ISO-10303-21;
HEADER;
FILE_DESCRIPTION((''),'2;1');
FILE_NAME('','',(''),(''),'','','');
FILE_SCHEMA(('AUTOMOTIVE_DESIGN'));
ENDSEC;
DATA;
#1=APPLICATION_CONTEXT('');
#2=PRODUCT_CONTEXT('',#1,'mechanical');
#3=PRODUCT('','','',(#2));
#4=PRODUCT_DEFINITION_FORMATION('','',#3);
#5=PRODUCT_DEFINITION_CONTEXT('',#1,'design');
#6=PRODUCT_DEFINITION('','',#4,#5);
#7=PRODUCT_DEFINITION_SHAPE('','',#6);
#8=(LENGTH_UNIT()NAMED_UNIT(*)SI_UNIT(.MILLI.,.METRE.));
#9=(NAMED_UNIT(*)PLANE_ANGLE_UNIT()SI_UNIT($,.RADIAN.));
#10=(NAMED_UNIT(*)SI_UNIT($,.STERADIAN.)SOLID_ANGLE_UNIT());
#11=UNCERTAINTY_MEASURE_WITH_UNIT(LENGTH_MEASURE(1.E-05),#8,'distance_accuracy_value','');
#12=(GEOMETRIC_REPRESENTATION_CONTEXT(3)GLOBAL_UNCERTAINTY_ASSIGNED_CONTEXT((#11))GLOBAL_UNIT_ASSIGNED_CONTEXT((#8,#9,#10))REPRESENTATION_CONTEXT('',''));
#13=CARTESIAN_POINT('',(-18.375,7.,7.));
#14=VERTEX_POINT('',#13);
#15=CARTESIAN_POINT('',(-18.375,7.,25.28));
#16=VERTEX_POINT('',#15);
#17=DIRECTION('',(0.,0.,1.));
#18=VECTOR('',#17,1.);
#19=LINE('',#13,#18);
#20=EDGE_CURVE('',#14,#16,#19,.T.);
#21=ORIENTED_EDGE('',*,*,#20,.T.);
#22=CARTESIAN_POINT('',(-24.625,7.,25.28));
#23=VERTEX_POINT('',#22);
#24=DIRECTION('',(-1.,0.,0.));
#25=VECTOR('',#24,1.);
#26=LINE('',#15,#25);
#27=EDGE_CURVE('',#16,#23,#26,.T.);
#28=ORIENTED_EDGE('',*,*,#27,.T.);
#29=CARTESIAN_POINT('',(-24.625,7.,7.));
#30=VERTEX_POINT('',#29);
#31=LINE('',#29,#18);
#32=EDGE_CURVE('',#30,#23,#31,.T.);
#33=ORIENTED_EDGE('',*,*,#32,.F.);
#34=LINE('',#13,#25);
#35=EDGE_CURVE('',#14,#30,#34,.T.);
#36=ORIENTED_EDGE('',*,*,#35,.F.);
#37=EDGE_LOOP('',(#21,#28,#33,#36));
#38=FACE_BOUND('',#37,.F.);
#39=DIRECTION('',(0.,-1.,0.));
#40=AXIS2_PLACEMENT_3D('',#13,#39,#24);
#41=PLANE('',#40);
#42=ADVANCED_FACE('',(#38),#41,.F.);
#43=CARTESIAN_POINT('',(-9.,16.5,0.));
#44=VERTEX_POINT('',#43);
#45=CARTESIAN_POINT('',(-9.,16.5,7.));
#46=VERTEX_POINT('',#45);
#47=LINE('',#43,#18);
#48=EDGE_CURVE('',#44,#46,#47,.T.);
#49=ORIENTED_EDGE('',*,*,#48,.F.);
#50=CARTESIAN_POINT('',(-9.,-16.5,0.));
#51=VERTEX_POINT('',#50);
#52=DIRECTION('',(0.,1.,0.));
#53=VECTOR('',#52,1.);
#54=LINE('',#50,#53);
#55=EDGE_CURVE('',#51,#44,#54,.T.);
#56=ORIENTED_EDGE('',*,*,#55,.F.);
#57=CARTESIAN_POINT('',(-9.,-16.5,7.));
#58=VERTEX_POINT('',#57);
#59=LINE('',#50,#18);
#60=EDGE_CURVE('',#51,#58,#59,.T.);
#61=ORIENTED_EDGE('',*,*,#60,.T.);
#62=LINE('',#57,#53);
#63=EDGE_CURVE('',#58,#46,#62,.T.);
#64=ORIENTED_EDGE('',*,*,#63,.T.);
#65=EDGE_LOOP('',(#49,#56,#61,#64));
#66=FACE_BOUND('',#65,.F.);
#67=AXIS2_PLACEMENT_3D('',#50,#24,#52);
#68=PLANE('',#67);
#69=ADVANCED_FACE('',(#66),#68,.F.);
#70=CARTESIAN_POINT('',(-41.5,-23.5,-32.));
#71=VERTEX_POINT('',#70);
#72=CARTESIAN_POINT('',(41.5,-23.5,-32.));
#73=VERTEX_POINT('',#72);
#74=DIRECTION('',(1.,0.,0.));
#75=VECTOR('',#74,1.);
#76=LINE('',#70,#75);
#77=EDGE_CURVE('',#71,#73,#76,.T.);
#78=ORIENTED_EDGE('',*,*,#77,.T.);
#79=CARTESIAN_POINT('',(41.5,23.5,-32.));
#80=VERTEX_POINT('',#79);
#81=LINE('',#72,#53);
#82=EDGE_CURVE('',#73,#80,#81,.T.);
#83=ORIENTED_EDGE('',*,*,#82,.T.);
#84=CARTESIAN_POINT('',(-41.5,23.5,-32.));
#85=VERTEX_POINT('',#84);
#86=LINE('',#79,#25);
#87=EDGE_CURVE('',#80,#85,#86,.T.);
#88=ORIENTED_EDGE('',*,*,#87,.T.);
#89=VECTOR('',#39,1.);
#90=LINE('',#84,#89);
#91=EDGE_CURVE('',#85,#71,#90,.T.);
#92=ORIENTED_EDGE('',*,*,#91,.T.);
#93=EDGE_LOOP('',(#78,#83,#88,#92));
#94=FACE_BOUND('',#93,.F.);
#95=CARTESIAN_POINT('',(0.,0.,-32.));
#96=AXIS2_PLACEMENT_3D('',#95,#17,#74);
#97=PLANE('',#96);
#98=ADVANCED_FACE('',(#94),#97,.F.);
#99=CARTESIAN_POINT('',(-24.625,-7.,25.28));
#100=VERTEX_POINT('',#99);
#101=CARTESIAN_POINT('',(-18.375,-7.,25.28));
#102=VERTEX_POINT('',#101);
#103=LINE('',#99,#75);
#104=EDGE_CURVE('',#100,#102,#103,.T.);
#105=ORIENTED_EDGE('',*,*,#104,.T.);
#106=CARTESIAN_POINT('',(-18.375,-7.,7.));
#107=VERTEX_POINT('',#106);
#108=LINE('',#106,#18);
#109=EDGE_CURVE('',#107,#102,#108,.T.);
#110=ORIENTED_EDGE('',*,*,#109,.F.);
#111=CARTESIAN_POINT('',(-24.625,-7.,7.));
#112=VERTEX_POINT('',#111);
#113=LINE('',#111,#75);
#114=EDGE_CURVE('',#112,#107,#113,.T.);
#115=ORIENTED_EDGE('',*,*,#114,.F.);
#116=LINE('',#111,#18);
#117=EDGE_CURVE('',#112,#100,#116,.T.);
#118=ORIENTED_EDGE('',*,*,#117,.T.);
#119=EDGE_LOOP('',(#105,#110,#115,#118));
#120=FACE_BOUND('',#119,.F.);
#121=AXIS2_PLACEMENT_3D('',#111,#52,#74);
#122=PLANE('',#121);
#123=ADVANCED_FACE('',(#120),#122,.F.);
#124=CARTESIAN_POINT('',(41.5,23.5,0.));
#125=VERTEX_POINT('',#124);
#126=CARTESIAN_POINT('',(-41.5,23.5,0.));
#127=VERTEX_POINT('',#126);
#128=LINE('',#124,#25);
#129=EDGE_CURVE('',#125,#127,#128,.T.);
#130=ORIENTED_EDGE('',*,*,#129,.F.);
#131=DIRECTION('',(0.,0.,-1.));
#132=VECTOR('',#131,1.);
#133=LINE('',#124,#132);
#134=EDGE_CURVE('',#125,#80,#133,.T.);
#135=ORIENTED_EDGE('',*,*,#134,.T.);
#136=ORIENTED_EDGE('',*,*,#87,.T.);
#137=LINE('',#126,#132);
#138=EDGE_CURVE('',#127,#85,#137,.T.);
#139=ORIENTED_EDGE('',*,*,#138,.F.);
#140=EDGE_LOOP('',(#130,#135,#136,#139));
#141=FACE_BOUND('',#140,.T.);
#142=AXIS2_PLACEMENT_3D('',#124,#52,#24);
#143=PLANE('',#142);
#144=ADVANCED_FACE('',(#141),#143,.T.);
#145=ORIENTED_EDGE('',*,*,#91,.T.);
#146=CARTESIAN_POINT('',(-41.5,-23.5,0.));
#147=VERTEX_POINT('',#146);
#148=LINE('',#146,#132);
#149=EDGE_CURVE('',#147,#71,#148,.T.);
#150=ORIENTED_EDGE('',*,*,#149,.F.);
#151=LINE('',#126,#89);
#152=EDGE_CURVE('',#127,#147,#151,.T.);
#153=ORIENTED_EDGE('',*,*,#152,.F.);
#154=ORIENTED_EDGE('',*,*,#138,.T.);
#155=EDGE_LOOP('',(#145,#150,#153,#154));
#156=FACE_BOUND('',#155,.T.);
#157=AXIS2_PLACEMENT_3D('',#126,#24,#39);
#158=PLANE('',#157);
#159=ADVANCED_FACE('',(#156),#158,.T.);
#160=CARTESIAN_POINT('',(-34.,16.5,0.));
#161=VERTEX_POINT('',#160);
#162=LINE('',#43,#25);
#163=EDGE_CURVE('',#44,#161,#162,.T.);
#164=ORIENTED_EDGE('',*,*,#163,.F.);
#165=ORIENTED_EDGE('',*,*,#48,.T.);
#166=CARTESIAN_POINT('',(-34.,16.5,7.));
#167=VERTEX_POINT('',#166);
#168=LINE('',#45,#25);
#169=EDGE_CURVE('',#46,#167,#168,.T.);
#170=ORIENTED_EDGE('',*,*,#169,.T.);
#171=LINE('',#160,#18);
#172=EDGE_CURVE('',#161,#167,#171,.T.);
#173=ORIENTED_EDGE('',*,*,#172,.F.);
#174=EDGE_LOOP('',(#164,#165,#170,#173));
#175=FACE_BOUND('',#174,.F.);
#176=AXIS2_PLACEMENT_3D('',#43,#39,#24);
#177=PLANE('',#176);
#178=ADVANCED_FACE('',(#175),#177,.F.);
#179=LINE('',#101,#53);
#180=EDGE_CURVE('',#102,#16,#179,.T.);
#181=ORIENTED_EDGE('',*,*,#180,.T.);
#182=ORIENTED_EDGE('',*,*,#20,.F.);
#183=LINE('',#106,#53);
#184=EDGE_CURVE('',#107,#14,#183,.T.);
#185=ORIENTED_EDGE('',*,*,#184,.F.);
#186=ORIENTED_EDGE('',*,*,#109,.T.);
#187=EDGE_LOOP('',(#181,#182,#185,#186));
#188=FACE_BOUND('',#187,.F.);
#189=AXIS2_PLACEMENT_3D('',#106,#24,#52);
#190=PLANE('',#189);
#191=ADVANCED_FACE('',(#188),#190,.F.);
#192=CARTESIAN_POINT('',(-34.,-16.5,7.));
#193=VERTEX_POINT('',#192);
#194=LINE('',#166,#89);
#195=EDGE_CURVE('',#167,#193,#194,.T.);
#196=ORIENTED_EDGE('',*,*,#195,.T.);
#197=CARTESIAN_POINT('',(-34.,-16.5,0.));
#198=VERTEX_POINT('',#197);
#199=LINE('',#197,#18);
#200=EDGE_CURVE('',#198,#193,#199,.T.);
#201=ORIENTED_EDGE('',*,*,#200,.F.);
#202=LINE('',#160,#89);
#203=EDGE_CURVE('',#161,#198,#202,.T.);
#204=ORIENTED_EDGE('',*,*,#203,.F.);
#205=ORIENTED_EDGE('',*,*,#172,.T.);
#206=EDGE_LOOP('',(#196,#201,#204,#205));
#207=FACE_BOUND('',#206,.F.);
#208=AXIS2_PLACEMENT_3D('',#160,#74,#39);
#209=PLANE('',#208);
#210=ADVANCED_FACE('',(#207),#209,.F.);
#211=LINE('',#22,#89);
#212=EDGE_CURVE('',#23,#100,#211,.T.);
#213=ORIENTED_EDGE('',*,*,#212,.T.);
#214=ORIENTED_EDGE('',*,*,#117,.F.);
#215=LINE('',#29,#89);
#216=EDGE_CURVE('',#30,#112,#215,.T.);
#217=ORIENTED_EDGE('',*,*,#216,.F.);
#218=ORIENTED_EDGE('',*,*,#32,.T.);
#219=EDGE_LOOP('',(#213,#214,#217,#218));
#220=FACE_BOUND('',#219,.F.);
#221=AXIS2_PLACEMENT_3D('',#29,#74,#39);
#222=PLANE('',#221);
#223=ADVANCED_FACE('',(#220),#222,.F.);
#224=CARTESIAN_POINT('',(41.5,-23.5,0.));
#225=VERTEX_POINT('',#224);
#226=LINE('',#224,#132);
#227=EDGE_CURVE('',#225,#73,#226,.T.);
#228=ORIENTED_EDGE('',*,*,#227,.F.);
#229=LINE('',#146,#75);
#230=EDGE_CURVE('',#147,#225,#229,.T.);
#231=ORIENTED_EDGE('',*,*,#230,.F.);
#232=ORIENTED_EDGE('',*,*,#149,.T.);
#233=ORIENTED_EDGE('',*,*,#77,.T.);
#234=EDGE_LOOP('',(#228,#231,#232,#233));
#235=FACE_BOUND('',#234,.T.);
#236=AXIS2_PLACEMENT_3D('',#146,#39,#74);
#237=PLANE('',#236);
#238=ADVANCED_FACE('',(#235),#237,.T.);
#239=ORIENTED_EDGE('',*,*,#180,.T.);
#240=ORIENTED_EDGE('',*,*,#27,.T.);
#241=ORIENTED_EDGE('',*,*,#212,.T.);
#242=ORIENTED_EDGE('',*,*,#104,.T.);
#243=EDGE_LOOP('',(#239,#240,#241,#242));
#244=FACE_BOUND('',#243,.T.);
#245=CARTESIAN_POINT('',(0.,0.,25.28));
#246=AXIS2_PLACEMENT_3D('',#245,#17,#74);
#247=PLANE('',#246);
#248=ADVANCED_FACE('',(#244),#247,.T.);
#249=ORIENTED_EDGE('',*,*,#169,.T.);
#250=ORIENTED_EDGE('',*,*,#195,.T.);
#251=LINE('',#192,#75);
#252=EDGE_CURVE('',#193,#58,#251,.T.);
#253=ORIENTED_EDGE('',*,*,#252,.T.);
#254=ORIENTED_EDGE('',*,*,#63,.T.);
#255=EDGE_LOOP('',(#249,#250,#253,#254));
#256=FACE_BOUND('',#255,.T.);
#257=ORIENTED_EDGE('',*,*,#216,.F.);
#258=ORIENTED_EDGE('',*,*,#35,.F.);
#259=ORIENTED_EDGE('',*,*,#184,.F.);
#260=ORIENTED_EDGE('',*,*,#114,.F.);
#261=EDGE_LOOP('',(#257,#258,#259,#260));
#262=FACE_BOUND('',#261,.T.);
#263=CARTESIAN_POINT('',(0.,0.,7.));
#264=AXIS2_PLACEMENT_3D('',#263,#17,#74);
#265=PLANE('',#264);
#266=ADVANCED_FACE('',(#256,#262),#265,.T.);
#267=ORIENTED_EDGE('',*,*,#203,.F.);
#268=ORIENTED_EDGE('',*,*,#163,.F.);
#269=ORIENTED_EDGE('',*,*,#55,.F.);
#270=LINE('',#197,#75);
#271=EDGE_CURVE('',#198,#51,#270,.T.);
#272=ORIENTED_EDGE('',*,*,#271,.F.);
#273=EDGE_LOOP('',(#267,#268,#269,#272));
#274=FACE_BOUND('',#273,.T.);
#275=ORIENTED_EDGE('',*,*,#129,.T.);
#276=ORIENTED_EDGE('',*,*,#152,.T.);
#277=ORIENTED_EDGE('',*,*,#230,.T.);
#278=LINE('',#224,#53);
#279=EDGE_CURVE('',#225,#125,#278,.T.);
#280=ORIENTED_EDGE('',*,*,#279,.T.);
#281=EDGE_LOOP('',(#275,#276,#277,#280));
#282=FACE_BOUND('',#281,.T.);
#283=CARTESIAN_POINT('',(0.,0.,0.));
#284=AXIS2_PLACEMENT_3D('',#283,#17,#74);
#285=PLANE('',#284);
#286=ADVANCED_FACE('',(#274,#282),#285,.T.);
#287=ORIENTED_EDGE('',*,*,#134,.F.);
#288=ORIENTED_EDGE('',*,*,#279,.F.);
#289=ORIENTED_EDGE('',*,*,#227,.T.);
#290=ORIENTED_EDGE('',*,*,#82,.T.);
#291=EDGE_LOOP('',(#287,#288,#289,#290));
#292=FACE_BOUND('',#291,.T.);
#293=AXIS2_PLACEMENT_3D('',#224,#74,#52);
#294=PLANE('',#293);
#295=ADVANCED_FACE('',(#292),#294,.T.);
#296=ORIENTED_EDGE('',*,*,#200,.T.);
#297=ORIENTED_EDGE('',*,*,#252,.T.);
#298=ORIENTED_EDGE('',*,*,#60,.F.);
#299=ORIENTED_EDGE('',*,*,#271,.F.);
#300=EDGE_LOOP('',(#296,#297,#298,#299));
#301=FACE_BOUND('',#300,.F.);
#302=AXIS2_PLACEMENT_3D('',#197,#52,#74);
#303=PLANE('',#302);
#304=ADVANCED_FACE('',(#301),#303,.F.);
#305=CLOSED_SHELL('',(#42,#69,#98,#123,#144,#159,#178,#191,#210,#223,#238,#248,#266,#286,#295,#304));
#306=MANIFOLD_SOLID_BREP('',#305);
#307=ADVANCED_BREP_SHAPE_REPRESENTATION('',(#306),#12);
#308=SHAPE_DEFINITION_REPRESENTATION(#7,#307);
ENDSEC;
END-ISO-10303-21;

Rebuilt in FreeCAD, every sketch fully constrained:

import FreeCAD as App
import Part
import Sketcher
from FreeCAD import Vector


def add_polygon(sketch, points):
    """Adds a closed chain of lines whose ends are joined by coincident constraints."""
    first, n = sketch.GeometryCount, len(points)
    for a, b in zip(points, points[1:] + points[:1]):
        sketch.addGeometry(Part.LineSegment(App.Vector(*a, 0), App.Vector(*b, 0)), False)
    for i in range(n):
        sketch.addConstraint(Sketcher.Constraint("Coincident", first + i, 2, first + (i + 1) % n, 1))

doc = App.newDocument("Part")
body = doc.addObject("PartDesign::Body", "Body")

# Sketch on XY plane
sketch1 = body.newObject("Sketcher::SketchObject", "Sketch")
sketch1.AttachmentSupport = (doc.getObject("XY_Plane"), [""])
sketch1.MapMode = "FlatFace"
add_polygon(sketch1, [(-42, 24), (-42, -24), (42, -24), (42, 24)])  # lines 0-3
sketch1.addConstraint([
    Sketcher.Constraint("Vertical", 0),
    Sketcher.Constraint("Horizontal", 1),
    Sketcher.Constraint("Vertical", 2),
    Sketcher.Constraint("Horizontal", 3),
    Sketcher.Constraint("Symmetric", 0, 2, 2, 2, -1, 1),
    Sketcher.Constraint("DistanceX", 1, 1, 1, 2, 83.0),
    Sketcher.Constraint("DistanceY", 0, 2, 0, 1, 47.0),
])
pad1 = body.newObject("PartDesign::Pad", "Pad")
pad1.Profile = sketch1
pad1.Length = 32
pad1.Reversed = True

# Sketch on XY plane
sketch2 = body.newObject("Sketcher::SketchObject", "Sketch001")
sketch2.AttachmentSupport = (doc.getObject("XY_Plane"), [""])
sketch2.MapMode = "FlatFace"
add_polygon(sketch2, [(-34, 16), (-34, -16), (-9, -16), (-9, 16)])  # lines 0-3
sketch2.addConstraint([
    Sketcher.Constraint("Vertical", 0),
    Sketcher.Constraint("Horizontal", 1),
    Sketcher.Constraint("Vertical", 2),
    Sketcher.Constraint("Horizontal", 3),
    Sketcher.Constraint("DistanceX", 1, 1, 1, 2, 25.0),
    Sketcher.Constraint("DistanceY", 0, 2, 0, 1, 33.0),
    Sketcher.Constraint("DistanceX", 0, 2, -1, 1, 34.0),
    Sketcher.Constraint("DistanceY", 0, 2, -1, 1, 16.5),
])
pad2 = body.newObject("PartDesign::Pad", "Pad001")
pad2.Profile = sketch2
pad2.Length = 7

# Sketch on XY plane
sketch3 = body.newObject("Sketcher::SketchObject", "Sketch002")
sketch3.AttachmentSupport = (doc.getObject("XY_Plane"), [""])
sketch3.MapMode = "FlatFace"
sketch3.AttachmentOffset = App.Placement(Vector(0, 0, 7), App.Rotation())
add_polygon(sketch3, [(-25, 7), (-25, -7), (-18, -7), (-18, 7)])  # lines 0-3
sketch3.addConstraint([
    Sketcher.Constraint("Vertical", 0),
    Sketcher.Constraint("Horizontal", 1),
    Sketcher.Constraint("Vertical", 2),
    Sketcher.Constraint("Horizontal", 3),
    Sketcher.Constraint("DistanceY", 0, 2, 0, 1, 14.0),
    Sketcher.Constraint("DistanceX", 1, 1, 1, 2, 6.25),
    Sketcher.Constraint("DistanceY", 0, 2, -1, 1, 7.0),
    Sketcher.Constraint("DistanceX", 0, 2, -1, 1, 24.625),
])
pad3 = body.newObject("PartDesign::Pad", "Pad002")
pad3.Profile = sketch3
pad3.Length = 18.28

doc.recompute()
